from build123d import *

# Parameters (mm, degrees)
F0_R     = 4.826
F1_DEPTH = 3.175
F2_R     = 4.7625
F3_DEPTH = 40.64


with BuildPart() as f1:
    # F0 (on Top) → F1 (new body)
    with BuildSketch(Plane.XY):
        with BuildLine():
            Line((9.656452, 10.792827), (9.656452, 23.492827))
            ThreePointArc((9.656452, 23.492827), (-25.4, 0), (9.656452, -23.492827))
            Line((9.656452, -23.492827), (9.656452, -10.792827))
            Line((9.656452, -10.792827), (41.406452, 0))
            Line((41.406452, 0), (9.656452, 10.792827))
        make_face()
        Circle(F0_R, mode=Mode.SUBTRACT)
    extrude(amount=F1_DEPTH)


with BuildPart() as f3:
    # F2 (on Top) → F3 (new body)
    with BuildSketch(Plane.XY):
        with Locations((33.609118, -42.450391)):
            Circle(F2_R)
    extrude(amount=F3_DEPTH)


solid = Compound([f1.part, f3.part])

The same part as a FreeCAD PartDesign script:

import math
import FreeCAD as App
import Part
import Sketcher
from FreeCAD import Vector
Q = App.Units.Quantity

doc = App.newDocument("Part")
params = doc.addObject("Spreadsheet::Sheet", "Params")
for row, (alias, value) in enumerate([
    ("sketch1_radius", "1 in"),
    ("sketch1_diameter", "0.38 in"),
    ("sketch1_height", "0.5 in"),
    ("pad1_length", "0.125 in"),
    ("sketch2_diameter", "0.375 in"),
    ("pad2_length", "1.6 in"),
], start=1):
    params.set(f"A{row}", alias)
    params.set(f"B{row}", "=" + value)
    params.setAlias(f"B{row}", alias)

body = doc.addObject("PartDesign::Body", "Body")

sketch1 = body.newObject("Sketcher::SketchObject", "Sketch")
sketch1.AttachmentSupport = (doc.getObject("XY_Plane"), [""])
sketch1.MapMode = "FlatFace"
sketch1.addGeometry([
    Part.LineSegment(Vector(9.7, 10.8, 0), Vector(9.7, 23.5, 0)),
    Part.ArcOfCircle(Part.Circle(Vector(0, 0, 0), Vector(0, 0, 1), 25.4), math.radians(68), math.radians(292)),
    Part.LineSegment(Vector(9.7, -23.5, 0), Vector(9.7, -10.8, 0)),
    Part.LineSegment(Vector(9.7, -10.8, 0), Vector(41.4, 0, 0)),
    Part.LineSegment(Vector(41.4, 0, 0), Vector(9.7, 10.8, 0)),
    Part.Circle(Vector(0, 0, 0), Vector(0, 0, 1), 4.8),
], False)
sketch1.addConstraint([
    Sketcher.Constraint("Coincident", 0, 2, 1, 1),
    Sketcher.Constraint("Coincident", 1, 2, 2, 1),
    Sketcher.Constraint("Coincident", 2, 2, 3, 1),
    Sketcher.Constraint("Coincident", 3, 2, 4, 1),
    Sketcher.Constraint("Coincident", 4, 2, 0, 1),
    Sketcher.Constraint("Vertical", 0),
    Sketcher.Constraint("Vertical", 2),
    Sketcher.Constraint("Coincident", 1, 3, -1, 1),
    Sketcher.Constraint("Coincident", 5, 3, -1, 1),
    Sketcher.Constraint("Symmetric", 2, 2, 4, 2, -1),
    Sketcher.Constraint("PointOnObject", 3, 2, -1),
    Sketcher.Constraint("Radius", 1, Q("1 in")),
    Sketcher.Constraint("Diameter", 5, Q("0.38 in")),
    Sketcher.Constraint("DistanceY", 0, 1, 0, 2, Q("0.5 in")),
    Sketcher.Constraint("DistanceX", 2, 2, 3, 2, Q("1.25 in")),
    Sketcher.Constraint("Distance", 3, Q("33.534275 mm")),
])
sketch1.setExpression("Constraints[11]", "Params.sketch1_radius")
sketch1.setExpression("Constraints[12]", "Params.sketch1_diameter")
sketch1.setExpression("Constraints[13]", "Params.sketch1_height")
pad1 = body.newObject("PartDesign::Pad", "Pad")
pad1.Profile = sketch1
pad1.setExpression("Length", "Params.pad1_length")
body2 = doc.addObject("PartDesign::Body", "Body001")

sketch2 = body2.newObject("Sketcher::SketchObject", "Sketch001")
sketch2.AttachmentSupport = (doc.getObject("XY_Plane001"), [""])
sketch2.MapMode = "FlatFace"
sketch2.addGeometry(Part.Circle(Vector(33.6, -42.5, 0), Vector(0, 0, 1), 4.8), False)
sketch2.addConstraint([
    Sketcher.Constraint("Diameter", 0, Q("0.375 in")),
    Sketcher.Constraint("DistanceX", -1, 1, 0, 3, Q("33.609118 mm")),
    Sketcher.Constraint("DistanceY", 0, 3, -1, 1, Q("42.450391 mm")),
])
sketch2.setExpression("Constraints[0]", "Params.sketch2_diameter")
pad2 = body2.newObject("PartDesign::Pad", "Pad001")
pad2.Profile = sketch2
pad2.setExpression("Length", "Params.pad2_length")

doc.recompute()
